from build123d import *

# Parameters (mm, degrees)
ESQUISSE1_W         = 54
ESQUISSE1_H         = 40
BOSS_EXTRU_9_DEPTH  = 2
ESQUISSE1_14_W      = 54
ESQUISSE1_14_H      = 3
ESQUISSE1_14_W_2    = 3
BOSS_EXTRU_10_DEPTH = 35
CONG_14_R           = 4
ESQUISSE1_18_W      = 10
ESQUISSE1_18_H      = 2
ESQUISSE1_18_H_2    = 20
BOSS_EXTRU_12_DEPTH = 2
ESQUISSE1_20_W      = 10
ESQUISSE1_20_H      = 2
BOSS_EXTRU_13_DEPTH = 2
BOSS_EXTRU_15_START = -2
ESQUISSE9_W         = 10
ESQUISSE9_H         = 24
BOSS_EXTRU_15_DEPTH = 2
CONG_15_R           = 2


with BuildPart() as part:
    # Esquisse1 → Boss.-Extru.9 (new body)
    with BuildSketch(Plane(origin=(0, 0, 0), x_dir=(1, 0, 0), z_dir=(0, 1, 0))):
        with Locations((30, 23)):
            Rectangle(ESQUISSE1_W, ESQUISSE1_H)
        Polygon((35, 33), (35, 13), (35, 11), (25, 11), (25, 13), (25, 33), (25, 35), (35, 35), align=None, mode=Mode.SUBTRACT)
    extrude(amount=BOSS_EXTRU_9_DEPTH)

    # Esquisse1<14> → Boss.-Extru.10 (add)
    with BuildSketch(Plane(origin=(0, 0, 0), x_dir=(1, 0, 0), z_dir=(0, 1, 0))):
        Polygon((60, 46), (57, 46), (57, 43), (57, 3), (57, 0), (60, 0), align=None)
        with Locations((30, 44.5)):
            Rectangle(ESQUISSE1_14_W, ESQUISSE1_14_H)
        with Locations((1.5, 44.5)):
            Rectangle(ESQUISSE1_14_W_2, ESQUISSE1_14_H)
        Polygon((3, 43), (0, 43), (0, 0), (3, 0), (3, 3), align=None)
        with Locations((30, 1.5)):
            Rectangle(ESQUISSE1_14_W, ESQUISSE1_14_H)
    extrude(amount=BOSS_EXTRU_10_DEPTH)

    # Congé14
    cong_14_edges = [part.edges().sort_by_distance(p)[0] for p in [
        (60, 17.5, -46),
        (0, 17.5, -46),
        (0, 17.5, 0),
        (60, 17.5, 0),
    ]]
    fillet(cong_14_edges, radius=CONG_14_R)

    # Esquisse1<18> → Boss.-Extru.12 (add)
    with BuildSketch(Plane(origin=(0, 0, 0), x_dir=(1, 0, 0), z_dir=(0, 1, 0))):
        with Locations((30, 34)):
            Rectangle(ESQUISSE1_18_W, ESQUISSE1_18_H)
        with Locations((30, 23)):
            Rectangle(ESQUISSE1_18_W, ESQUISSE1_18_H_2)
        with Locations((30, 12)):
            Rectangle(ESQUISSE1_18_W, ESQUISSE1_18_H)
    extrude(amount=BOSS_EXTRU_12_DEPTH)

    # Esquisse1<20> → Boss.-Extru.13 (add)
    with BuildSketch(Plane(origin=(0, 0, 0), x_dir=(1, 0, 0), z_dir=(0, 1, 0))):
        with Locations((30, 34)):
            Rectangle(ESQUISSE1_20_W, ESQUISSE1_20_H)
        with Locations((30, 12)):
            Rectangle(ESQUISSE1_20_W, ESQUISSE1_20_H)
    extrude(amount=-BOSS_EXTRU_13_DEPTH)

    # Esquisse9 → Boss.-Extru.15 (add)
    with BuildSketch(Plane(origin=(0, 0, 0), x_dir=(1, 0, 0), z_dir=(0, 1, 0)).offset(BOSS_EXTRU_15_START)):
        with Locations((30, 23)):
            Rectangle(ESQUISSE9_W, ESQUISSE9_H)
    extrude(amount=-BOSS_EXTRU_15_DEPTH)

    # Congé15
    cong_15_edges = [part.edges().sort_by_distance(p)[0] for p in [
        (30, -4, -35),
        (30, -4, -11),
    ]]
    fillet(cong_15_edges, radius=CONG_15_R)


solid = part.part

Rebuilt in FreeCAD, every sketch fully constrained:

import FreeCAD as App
import Part
import Sketcher
from FreeCAD import Vector


def edges_at(feature, points):
    """Names of the edges that pass closest to the given points."""
    edges = feature.Shape.Edges
    near = lambda p: min(range(len(edges)), key=lambda i: edges[i].distToShape(Part.Vertex(*p))[0])
    return sorted({f"Edge{near(p) + 1}" for p in points})

doc = App.newDocument("Part")
params = doc.addObject("Spreadsheet::Sheet", "Params")
for row, (alias, value) in enumerate([
    ("sketch1_width", "54 mm"),
    ("sketch1_width2", "10 mm"),
    ("sketch1_height", "40 mm"),
    ("sketch1_height2", "24 mm"),
    ("pad1_length", "2 mm"),
    ("sketch2_width", "60 mm"),
    ("sketch2_width2", "54 mm"),
    ("sketch2_height", "46 mm"),
    ("sketch2_height2", "40 mm"),
    ("pad2_length", "35 mm"),
    ("fillet_radius", "4 mm"),
    ("sketch3_width", "10 mm"),
    ("sketch3_height", "24 mm"),
    ("pad3_length", "2 mm"),
    ("sketch4_width", "10 mm"),
    ("sketch4_height", "2 mm"),
    ("pad4_length", "2 mm"),
    ("sketch5_width", "10 mm"),
    ("sketch5_height", "24 mm"),
    ("pad5_length", "2 mm"),
    ("fillet2_radius", "2 mm"),
], start=1):
    params.set(f"A{row}", alias)
    params.set(f"B{row}", "=" + value)
    params.setAlias(f"B{row}", alias)

body = doc.addObject("PartDesign::Body", "Body")

sketch1 = doc.addObject("Sketcher::SketchObject", "Sketch")
body.addObject(sketch1)
sketch1.AttachmentSupport = (doc.XZ_Plane, [""])
sketch1.MapMode = "FlatFace"
sketch1.addGeometry(Part.LineSegment(Vector(3, -43, 0), Vector(3, -3, 0)), False)
sketch1.addGeometry(Part.LineSegment(Vector(3, -3, 0), Vector(57, -3, 0)), False)
sketch1.addGeometry(Part.LineSegment(Vector(57, -3, 0), Vector(57, -43, 0)), False)
sketch1.addGeometry(Part.LineSegment(Vector(57, -43, 0), Vector(3, -43, 0)), False)
sketch1.addGeometry(Part.LineSegment(Vector(35, -35, 0), Vector(35, -11, 0)), False)
sketch1.addGeometry(Part.LineSegment(Vector(35, -11, 0), Vector(25, -11, 0)), False)
sketch1.addGeometry(Part.LineSegment(Vector(25, -11, 0), Vector(25, -35, 0)), False)
sketch1.addGeometry(Part.LineSegment(Vector(25, -35, 0), Vector(35, -35, 0)), False)
sketch1.addConstraint(Sketcher.Constraint("Coincident", 0, 2, 1, 1))
sketch1.addConstraint(Sketcher.Constraint("Coincident", 1, 2, 2, 1))
sketch1.addConstraint(Sketcher.Constraint("Coincident", 2, 2, 3, 1))
sketch1.addConstraint(Sketcher.Constraint("Coincident", 3, 2, 0, 1))
sketch1.addConstraint(Sketcher.Constraint("Coincident", 4, 2, 5, 1))
sketch1.addConstraint(Sketcher.Constraint("Coincident", 5, 2, 6, 1))
sketch1.addConstraint(Sketcher.Constraint("Coincident", 6, 2, 7, 1))
sketch1.addConstraint(Sketcher.Constraint("Coincident", 7, 2, 4, 1))
sketch1.addConstraint(Sketcher.Constraint("Vertical", 0))
sketch1.addConstraint(Sketcher.Constraint("Horizontal", 1))
sketch1.addConstraint(Sketcher.Constraint("Vertical", 2))
sketch1.addConstraint(Sketcher.Constraint("Horizontal", 3))
sketch1.addConstraint(Sketcher.Constraint("Vertical", 4))
sketch1.addConstraint(Sketcher.Constraint("Horizontal", 5))
sketch1.addConstraint(Sketcher.Constraint("Vertical", 6))
sketch1.addConstraint(Sketcher.Constraint("Horizontal", 7))
sketch1.addConstraint(Sketcher.Constraint("DistanceX", 1, 1, 1, 2, 54.0))
sketch1.addConstraint(Sketcher.Constraint("DistanceX", 5, 2, 5, 1, 10.0))
sketch1.addConstraint(Sketcher.Constraint("DistanceY", 0, 1, 0, 2, 40.0))
sketch1.addConstraint(Sketcher.Constraint("DistanceY", 4, 1, 4, 2, 24.0))
sketch1.addConstraint(Sketcher.Constraint("DistanceX", -1, 1, 0, 2, 3.0))
sketch1.addConstraint(Sketcher.Constraint("DistanceY", 0, 2, -1, 1, 3.0))
sketch1.addConstraint(Sketcher.Constraint("DistanceX", -1, 1, 4, 2, 35.0))
sketch1.addConstraint(Sketcher.Constraint("DistanceY", 4, 2, -1, 1, 11.0))
sketch1.setExpression("Constraints[16]", "Params.sketch1_width")
sketch1.setExpression("Constraints[17]", "Params.sketch1_width2")
sketch1.setExpression("Constraints[18]", "Params.sketch1_height")
sketch1.setExpression("Constraints[19]", "Params.sketch1_height2")
pad1 = doc.addObject("PartDesign::Pad", "Pad")
body.addObject(pad1)
pad1.Profile = sketch1
pad1.setExpression("Length", "Params.pad1_length")
pad1.Reversed = True

sketch2 = doc.addObject("Sketcher::SketchObject", "Sketch001")
body.addObject(sketch2)
sketch2.AttachmentSupport = (doc.XZ_Plane, [""])
sketch2.MapMode = "FlatFace"
sketch2.addGeometry(Part.LineSegment(Vector(60, -46, 0), Vector(0, -46, 0)), False)
sketch2.addGeometry(Part.LineSegment(Vector(0, -46, 0), Vector(0, 0, 0)), False)
sketch2.addGeometry(Part.LineSegment(Vector(0, 0, 0), Vector(60, 0, 0)), False)
sketch2.addGeometry(Part.LineSegment(Vector(60, 0, 0), Vector(60, -46, 0)), False)
sketch2.addGeometry(Part.LineSegment(Vector(3, -3, 0), Vector(3, -43, 0)), False)
sketch2.addGeometry(Part.LineSegment(Vector(3, -43, 0), Vector(57, -43, 0)), False)
sketch2.addGeometry(Part.LineSegment(Vector(57, -43, 0), Vector(57, -3, 0)), False)
sketch2.addGeometry(Part.LineSegment(Vector(57, -3, 0), Vector(3, -3, 0)), False)
sketch2.addConstraint(Sketcher.Constraint("Coincident", 0, 2, 1, 1))
sketch2.addConstraint(Sketcher.Constraint("Coincident", 1, 2, 2, 1))
sketch2.addConstraint(Sketcher.Constraint("Coincident", 2, 2, 3, 1))
sketch2.addConstraint(Sketcher.Constraint("Coincident", 3, 2, 0, 1))
sketch2.addConstraint(Sketcher.Constraint("Coincident", 4, 2, 5, 1))
sketch2.addConstraint(Sketcher.Constraint("Coincident", 5, 2, 6, 1))
sketch2.addConstraint(Sketcher.Constraint("Coincident", 6, 2, 7, 1))
sketch2.addConstraint(Sketcher.Constraint("Coincident", 7, 2, 4, 1))
sketch2.addConstraint(Sketcher.Constraint("Horizontal", 0))
sketch2.addConstraint(Sketcher.Constraint("Vertical", 1))
sketch2.addConstraint(Sketcher.Constraint("Horizontal", 2))
sketch2.addConstraint(Sketcher.Constraint("Vertical", 3))
sketch2.addConstraint(Sketcher.Constraint("Vertical", 4))
sketch2.addConstraint(Sketcher.Constraint("Horizontal", 5))
sketch2.addConstraint(Sketcher.Constraint("Vertical", 6))
sketch2.addConstraint(Sketcher.Constraint("Horizontal", 7))
sketch2.addConstraint(Sketcher.Constraint("Coincident", 1, 2, -1, 1))
sketch2.addConstraint(Sketcher.Constraint("DistanceX", 0, 2, 0, 1, 60.0))
sketch2.addConstraint(Sketcher.Constraint("DistanceX", 5, 1, 5, 2, 54.0))
sketch2.addConstraint(Sketcher.Constraint("DistanceY", 1, 1, 1, 2, 46.0))
sketch2.addConstraint(Sketcher.Constraint("DistanceY", 4, 2, 4, 1, 40.0))
sketch2.addConstraint(Sketcher.Constraint("DistanceX", -1, 1, 4, 2, 3.0))
sketch2.addConstraint(Sketcher.Constraint("DistanceY", 4, 2, -1, 1, 43.0))
sketch2.setExpression("Constraints[17]", "Params.sketch2_width")
sketch2.setExpression("Constraints[18]", "Params.sketch2_width2")
sketch2.setExpression("Constraints[19]", "Params.sketch2_height")
sketch2.setExpression("Constraints[20]", "Params.sketch2_height2")
pad2 = doc.addObject("PartDesign::Pad", "Pad001")
body.addObject(pad2)
pad2.Profile = sketch2
pad2.setExpression("Length", "Params.pad2_length")
pad2.Reversed = True
doc.recompute()

fillet = doc.addObject("PartDesign::Fillet", "Fillet")
body.addObject(fillet)
fillet.Base = (pad2, edges_at(pad2, [
    (60, 17.5, -46),
    (0, 17.5, -46),
    (0, 17.5, 0),
    (60, 17.5, 0),
]))
fillet.setExpression("Radius", "Params.fillet_radius")

sketch3 = doc.addObject("Sketcher::SketchObject", "Sketch002")
body.addObject(sketch3)
sketch3.AttachmentSupport = (doc.XZ_Plane, [""])
sketch3.MapMode = "FlatFace"
sketch3.addGeometry(Part.LineSegment(Vector(25, -35, 0), Vector(25, -11, 0)), False)
sketch3.addGeometry(Part.LineSegment(Vector(25, -11, 0), Vector(35, -11, 0)), False)
sketch3.addGeometry(Part.LineSegment(Vector(35, -11, 0), Vector(35, -35, 0)), False)
sketch3.addGeometry(Part.LineSegment(Vector(35, -35, 0), Vector(25, -35, 0)), False)
sketch3.addConstraint(Sketcher.Constraint("Coincident", 0, 2, 1, 1))
sketch3.addConstraint(Sketcher.Constraint("Coincident", 1, 2, 2, 1))
sketch3.addConstraint(Sketcher.Constraint("Coincident", 2, 2, 3, 1))
sketch3.addConstraint(Sketcher.Constraint("Coincident", 3, 2, 0, 1))
sketch3.addConstraint(Sketcher.Constraint("Vertical", 0))
sketch3.addConstraint(Sketcher.Constraint("Horizontal", 1))
sketch3.addConstraint(Sketcher.Constraint("Vertical", 2))
sketch3.addConstraint(Sketcher.Constraint("Horizontal", 3))
sketch3.addConstraint(Sketcher.Constraint("DistanceX", 1, 1, 1, 2, 10.0))
sketch3.addConstraint(Sketcher.Constraint("DistanceY", 0, 1, 0, 2, 24.0))
sketch3.addConstraint(Sketcher.Constraint("DistanceX", -1, 1, 0, 2, 25.0))
sketch3.addConstraint(Sketcher.Constraint("DistanceY", 0, 2, -1, 1, 11.0))
sketch3.setExpression("Constraints[8]", "Params.sketch3_width")
sketch3.setExpression("Constraints[9]", "Params.sketch3_height")
pad3 = doc.addObject("PartDesign::Pad", "Pad002")
body.addObject(pad3)
pad3.Profile = sketch3
pad3.setExpression("Length", "Params.pad3_length")
pad3.Reversed = True

sketch4 = doc.addObject("Sketcher::SketchObject", "Sketch003")
body.addObject(sketch4)
sketch4.AttachmentSupport = (doc.XZ_Plane, [""])
sketch4.MapMode = "FlatFace"
sketch4.addGeometry(Part.LineSegment(Vector(25, -35, 0), Vector(25, -33, 0)), False)
sketch4.addGeometry(Part.LineSegment(Vector(25, -33, 0), Vector(35, -33, 0)), False)
sketch4.addGeometry(Part.LineSegment(Vector(35, -33, 0), Vector(35, -35, 0)), False)
sketch4.addGeometry(Part.LineSegment(Vector(35, -35, 0), Vector(25, -35, 0)), False)
sketch4.addGeometry(Part.LineSegment(Vector(25, -13, 0), Vector(25, -11, 0)), False)
sketch4.addGeometry(Part.LineSegment(Vector(25, -11, 0), Vector(35, -11, 0)), False)
sketch4.addGeometry(Part.LineSegment(Vector(35, -11, 0), Vector(35, -13, 0)), False)
sketch4.addGeometry(Part.LineSegment(Vector(35, -13, 0), Vector(25, -13, 0)), False)
sketch4.addConstraint(Sketcher.Constraint("Coincident", 0, 2, 1, 1))
sketch4.addConstraint(Sketcher.Constraint("Coincident", 1, 2, 2, 1))
sketch4.addConstraint(Sketcher.Constraint("Coincident", 2, 2, 3, 1))
sketch4.addConstraint(Sketcher.Constraint("Coincident", 3, 2, 0, 1))
sketch4.addConstraint(Sketcher.Constraint("Coincident", 4, 2, 5, 1))
sketch4.addConstraint(Sketcher.Constraint("Coincident", 5, 2, 6, 1))
sketch4.addConstraint(Sketcher.Constraint("Coincident", 6, 2, 7, 1))
sketch4.addConstraint(Sketcher.Constraint("Coincident", 7, 2, 4, 1))
sketch4.addConstraint(Sketcher.Constraint("Vertical", 0))
sketch4.addConstraint(Sketcher.Constraint("Horizontal", 1))
sketch4.addConstraint(Sketcher.Constraint("Vertical", 2))
sketch4.addConstraint(Sketcher.Constraint("Horizontal", 3))
sketch4.addConstraint(Sketcher.Constraint("Vertical", 4))
sketch4.addConstraint(Sketcher.Constraint("Horizontal", 5))
sketch4.addConstraint(Sketcher.Constraint("Vertical", 6))
sketch4.addConstraint(Sketcher.Constraint("Horizontal", 7))
sketch4.addConstraint(Sketcher.Constraint("Vertical", 3, 2, 4, 2))
sketch4.addConstraint(Sketcher.Constraint("Vertical", 2, 2, 5, 2))
sketch4.addConstraint(Sketcher.Constraint("Equal", 2, 4))
sketch4.addConstraint(Sketcher.Constraint("DistanceX", 1, 1, 1, 2, 10.0))
sketch4.addConstraint(Sketcher.Constraint("DistanceY", 0, 1, 0, 2, 2.0))
sketch4.addConstraint(Sketcher.Constraint("DistanceX", -1, 1, 0, 2, 25.0))
sketch4.addConstraint(Sketcher.Constraint("DistanceY", 0, 2, -1, 1, 33.0))
sketch4.addConstraint(Sketcher.Constraint("DistanceY", 4, 2, -1, 1, 11.0))
sketch4.setExpression("Constraints[19]", "Params.sketch4_width")
sketch4.setExpression("Constraints[20]", "Params.sketch4_height")
pad4 = doc.addObject("PartDesign::Pad", "Pad003")
body.addObject(pad4)
pad4.Profile = sketch4
pad4.setExpression("Length", "Params.pad4_length")

sketch5 = doc.addObject("Sketcher::SketchObject", "Sketch004")
body.addObject(sketch5)
sketch5.AttachmentSupport = (doc.XZ_Plane, [""])
sketch5.MapMode = "FlatFace"
sketch5.AttachmentOffset = App.Placement(Vector(0, 0, 2), App.Rotation())
sketch5.addGeometry(Part.LineSegment(Vector(25, -35, 0), Vector(25, -11, 0)), False)
sketch5.addGeometry(Part.LineSegment(Vector(25, -11, 0), Vector(35, -11, 0)), False)
sketch5.addGeometry(Part.LineSegment(Vector(35, -11, 0), Vector(35, -35, 0)), False)
sketch5.addGeometry(Part.LineSegment(Vector(35, -35, 0), Vector(25, -35, 0)), False)
sketch5.addConstraint(Sketcher.Constraint("Coincident", 0, 2, 1, 1))
sketch5.addConstraint(Sketcher.Constraint("Coincident", 1, 2, 2, 1))
sketch5.addConstraint(Sketcher.Constraint("Coincident", 2, 2, 3, 1))
sketch5.addConstraint(Sketcher.Constraint("Coincident", 3, 2, 0, 1))
sketch5.addConstraint(Sketcher.Constraint("Vertical", 0))
sketch5.addConstraint(Sketcher.Constraint("Horizontal", 1))
sketch5.addConstraint(Sketcher.Constraint("Vertical", 2))
sketch5.addConstraint(Sketcher.Constraint("Horizontal", 3))
sketch5.addConstraint(Sketcher.Constraint("DistanceX", 1, 1, 1, 2, 10.0))
sketch5.addConstraint(Sketcher.Constraint("DistanceY", 0, 1, 0, 2, 24.0))
sketch5.addConstraint(Sketcher.Constraint("DistanceX", -1, 1, 0, 2, 25.0))
sketch5.addConstraint(Sketcher.Constraint("DistanceY", 0, 2, -1, 1, 11.0))
sketch5.setExpression("Constraints[8]", "Params.sketch5_width")
sketch5.setExpression("Constraints[9]", "Params.sketch5_height")
pad5 = doc.addObject("PartDesign::Pad", "Pad004")
body.addObject(pad5)
pad5.Profile = sketch5
pad5.setExpression("Length", "Params.pad5_length")
doc.recompute()

fillet2 = doc.addObject("PartDesign::Fillet", "Fillet001")
body.addObject(fillet2)
fillet2.Base = (pad5, edges_at(pad5, [(30, -4, -35), (30, -4, -11)]))
fillet2.setExpression("Radius", "Params.fillet2_radius")

doc.recompute()
